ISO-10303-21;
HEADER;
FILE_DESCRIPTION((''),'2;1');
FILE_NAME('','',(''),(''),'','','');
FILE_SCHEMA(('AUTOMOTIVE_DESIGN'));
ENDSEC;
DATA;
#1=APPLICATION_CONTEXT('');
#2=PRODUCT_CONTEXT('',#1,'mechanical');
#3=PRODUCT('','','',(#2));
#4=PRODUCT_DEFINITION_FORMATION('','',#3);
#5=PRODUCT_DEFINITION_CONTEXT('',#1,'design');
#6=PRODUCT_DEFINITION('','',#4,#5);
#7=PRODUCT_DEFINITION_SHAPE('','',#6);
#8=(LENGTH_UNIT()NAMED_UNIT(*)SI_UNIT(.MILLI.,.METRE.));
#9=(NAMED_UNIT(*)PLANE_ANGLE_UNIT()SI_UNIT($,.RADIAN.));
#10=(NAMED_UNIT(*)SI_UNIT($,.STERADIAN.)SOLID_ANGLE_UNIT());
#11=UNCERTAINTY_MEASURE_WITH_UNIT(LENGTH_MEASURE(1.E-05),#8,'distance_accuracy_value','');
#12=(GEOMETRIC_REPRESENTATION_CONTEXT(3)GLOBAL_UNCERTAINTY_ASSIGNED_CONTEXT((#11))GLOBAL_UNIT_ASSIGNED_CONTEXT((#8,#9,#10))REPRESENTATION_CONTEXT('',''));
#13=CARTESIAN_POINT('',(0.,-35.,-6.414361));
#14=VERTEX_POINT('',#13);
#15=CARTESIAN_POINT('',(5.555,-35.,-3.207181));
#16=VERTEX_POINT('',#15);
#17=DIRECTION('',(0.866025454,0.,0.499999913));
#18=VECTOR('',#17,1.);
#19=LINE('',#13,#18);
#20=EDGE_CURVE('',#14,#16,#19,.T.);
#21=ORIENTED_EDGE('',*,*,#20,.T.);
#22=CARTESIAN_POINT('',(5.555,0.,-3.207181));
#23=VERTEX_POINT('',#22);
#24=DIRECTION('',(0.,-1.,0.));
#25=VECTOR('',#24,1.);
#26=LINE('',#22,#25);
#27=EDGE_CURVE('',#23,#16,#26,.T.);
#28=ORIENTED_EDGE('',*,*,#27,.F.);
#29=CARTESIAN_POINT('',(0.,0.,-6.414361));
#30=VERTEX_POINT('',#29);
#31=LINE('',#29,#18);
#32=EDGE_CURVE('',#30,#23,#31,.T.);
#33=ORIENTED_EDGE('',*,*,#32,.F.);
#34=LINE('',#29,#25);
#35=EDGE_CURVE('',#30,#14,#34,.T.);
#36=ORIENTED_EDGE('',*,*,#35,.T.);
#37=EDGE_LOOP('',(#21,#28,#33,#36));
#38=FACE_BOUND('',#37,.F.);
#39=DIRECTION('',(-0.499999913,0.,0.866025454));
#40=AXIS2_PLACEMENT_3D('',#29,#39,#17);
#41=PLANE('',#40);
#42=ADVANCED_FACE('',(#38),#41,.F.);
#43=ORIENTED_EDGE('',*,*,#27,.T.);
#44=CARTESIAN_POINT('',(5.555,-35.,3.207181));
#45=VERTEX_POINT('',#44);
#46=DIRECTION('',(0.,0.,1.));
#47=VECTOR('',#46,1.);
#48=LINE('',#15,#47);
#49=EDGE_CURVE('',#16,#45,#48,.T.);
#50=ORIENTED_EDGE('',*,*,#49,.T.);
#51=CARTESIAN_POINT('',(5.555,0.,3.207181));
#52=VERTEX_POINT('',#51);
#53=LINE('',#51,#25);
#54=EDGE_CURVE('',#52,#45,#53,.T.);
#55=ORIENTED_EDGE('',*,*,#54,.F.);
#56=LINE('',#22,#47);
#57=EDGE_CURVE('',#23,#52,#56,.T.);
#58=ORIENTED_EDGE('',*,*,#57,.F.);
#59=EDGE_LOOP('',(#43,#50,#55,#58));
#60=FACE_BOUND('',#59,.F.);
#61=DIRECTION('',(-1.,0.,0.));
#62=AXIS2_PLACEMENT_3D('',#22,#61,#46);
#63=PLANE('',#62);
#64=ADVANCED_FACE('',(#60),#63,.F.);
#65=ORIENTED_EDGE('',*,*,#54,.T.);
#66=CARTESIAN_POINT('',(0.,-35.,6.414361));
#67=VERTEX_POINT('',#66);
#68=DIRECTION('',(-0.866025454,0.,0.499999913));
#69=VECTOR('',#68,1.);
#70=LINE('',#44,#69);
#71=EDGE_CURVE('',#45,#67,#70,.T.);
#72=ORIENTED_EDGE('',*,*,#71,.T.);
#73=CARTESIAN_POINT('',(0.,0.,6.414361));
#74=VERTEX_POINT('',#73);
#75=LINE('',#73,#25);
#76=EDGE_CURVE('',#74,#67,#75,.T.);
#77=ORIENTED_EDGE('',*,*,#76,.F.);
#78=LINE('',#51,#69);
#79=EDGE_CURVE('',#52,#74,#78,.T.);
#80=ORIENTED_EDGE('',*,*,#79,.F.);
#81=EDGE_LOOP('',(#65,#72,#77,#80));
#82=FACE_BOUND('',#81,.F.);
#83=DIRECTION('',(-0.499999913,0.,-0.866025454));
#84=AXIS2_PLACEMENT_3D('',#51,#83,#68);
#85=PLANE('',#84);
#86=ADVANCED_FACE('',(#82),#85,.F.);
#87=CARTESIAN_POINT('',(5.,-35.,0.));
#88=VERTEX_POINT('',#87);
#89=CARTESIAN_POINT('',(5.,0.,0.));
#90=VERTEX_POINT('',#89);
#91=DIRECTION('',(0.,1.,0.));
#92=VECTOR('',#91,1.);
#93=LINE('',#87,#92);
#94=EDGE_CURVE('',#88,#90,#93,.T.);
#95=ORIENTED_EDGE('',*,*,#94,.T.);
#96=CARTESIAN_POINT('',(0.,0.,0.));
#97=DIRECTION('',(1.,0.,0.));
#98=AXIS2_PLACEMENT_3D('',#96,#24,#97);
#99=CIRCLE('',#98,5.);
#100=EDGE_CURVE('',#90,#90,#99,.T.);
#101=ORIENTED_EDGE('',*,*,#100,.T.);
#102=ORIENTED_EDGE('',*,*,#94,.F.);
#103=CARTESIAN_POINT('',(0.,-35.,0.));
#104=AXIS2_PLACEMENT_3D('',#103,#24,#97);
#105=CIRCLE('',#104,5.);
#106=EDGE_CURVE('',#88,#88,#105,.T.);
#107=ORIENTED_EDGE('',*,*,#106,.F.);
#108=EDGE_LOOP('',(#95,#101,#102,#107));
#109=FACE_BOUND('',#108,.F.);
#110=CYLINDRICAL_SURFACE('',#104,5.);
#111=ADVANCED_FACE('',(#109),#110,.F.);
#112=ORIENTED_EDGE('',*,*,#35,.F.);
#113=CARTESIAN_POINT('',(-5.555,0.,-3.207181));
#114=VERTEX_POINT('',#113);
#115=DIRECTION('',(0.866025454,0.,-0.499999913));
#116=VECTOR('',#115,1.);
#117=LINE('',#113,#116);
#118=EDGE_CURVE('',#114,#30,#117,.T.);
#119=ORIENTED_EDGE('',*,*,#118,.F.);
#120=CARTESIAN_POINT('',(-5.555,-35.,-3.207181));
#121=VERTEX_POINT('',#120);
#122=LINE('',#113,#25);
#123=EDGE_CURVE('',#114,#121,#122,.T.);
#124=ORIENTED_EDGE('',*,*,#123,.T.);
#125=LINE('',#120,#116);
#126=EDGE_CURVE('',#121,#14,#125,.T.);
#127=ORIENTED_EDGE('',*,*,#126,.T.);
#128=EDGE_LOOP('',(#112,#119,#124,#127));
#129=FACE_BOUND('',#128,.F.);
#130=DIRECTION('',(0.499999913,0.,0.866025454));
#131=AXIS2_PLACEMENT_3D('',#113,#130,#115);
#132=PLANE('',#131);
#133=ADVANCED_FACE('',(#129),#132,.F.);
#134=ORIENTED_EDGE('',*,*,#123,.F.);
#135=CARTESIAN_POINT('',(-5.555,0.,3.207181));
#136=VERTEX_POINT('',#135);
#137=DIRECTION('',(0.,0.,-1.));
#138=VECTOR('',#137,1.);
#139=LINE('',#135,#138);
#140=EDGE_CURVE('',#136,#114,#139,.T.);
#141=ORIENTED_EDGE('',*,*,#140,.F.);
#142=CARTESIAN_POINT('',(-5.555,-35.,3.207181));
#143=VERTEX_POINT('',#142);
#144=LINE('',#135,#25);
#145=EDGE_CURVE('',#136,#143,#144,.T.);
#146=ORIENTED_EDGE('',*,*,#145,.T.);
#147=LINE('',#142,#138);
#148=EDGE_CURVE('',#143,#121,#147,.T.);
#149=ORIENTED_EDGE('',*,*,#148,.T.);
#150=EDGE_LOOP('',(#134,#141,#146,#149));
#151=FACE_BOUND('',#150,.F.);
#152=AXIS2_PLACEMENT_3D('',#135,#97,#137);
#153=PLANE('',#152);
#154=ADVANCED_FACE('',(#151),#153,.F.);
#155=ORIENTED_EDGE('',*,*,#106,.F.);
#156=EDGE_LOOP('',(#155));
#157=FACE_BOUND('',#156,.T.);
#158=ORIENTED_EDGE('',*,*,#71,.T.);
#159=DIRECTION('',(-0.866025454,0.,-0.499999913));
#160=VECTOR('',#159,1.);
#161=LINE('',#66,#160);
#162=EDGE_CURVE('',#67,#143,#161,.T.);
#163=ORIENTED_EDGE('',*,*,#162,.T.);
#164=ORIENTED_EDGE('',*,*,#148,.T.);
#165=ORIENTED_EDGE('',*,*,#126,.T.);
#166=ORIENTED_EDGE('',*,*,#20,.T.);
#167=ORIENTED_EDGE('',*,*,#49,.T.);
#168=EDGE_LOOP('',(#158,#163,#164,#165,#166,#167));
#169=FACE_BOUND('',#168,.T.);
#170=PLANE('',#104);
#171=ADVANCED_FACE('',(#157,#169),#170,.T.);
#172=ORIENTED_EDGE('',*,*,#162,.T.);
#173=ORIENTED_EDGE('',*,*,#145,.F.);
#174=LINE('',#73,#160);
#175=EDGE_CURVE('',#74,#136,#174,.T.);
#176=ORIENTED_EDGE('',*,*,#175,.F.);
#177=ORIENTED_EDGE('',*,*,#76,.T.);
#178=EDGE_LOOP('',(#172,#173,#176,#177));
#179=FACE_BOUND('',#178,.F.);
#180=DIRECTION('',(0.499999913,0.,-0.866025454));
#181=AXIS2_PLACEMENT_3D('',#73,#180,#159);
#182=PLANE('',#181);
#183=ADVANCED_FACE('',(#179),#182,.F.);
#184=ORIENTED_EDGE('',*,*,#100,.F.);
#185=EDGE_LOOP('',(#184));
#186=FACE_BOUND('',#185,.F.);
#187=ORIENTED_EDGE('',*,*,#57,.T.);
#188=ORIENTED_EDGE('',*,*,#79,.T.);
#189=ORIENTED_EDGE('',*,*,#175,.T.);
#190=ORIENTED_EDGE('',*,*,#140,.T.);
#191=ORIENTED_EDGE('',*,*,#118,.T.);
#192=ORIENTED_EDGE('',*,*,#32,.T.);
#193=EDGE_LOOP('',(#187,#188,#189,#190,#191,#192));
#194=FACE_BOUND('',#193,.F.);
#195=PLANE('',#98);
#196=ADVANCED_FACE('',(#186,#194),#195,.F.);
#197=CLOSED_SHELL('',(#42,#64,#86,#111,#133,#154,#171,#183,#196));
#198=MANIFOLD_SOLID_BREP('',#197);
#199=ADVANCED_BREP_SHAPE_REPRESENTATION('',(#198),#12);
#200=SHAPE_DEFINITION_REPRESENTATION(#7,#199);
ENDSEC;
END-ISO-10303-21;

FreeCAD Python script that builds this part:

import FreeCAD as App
import Part
import Sketcher
from FreeCAD import Vector
Q = App.Units.Quantity

doc = App.newDocument("Part")
body = doc.addObject("PartDesign::Body", "Body")

# Sketch on XZ plane
sketch1 = doc.addObject("Sketcher::SketchObject", "Sketch")
body.addObject(sketch1)
sketch1.AttachmentSupport = (doc.XZ_Plane, [""])
sketch1.MapMode = "FlatFace"
sketch1.addGeometry(Part.LineSegment(Vector(6, -3, 0), Vector(6, 3, 0)), False)
sketch1.addGeometry(Part.LineSegment(Vector(6, 3, 0), Vector(0, 6, 0)), False)
sketch1.addGeometry(Part.LineSegment(Vector(0, 6, 0), Vector(-6, 3, 0)), False)
sketch1.addGeometry(Part.LineSegment(Vector(-6, 3, 0), Vector(-6, -3, 0)), False)
sketch1.addGeometry(Part.LineSegment(Vector(-6, -3, 0), Vector(0, -6, 0)), False)
sketch1.addGeometry(Part.LineSegment(Vector(0, -6, 0), Vector(6, -3, 0)), False)
sketch1.addConstraint(Sketcher.Constraint("Coincident", 0, 2, 1, 1))
sketch1.addConstraint(Sketcher.Constraint("Coincident", 1, 2, 2, 1))
sketch1.addConstraint(Sketcher.Constraint("Coincident", 2, 2, 3, 1))
sketch1.addConstraint(Sketcher.Constraint("Coincident", 3, 2, 4, 1))
sketch1.addConstraint(Sketcher.Constraint("Coincident", 4, 2, 5, 1))
sketch1.addConstraint(Sketcher.Constraint("Coincident", 5, 2, 0, 1))
sketch1.addConstraint(Sketcher.Constraint("Vertical", 0))
sketch1.addConstraint(Sketcher.Constraint("Vertical", 3))
sketch1.addConstraint(Sketcher.Constraint("Symmetric", 0, 2, 3, 2, -1, 1))
sketch1.addConstraint(Sketcher.Constraint("Symmetric", 1, 2, 4, 2, -1, 1))
sketch1.addConstraint(Sketcher.Constraint("PointOnObject", 1, 2, -2))
sketch1.addConstraint(Sketcher.Constraint("Parallel", 2, 5))
sketch1.addConstraint(Sketcher.Constraint("Horizontal", 0, 2, 2, 2))
sketch1.addConstraint(Sketcher.Constraint("Angle", 1, Q("150.000006 deg")))
sketch1.addConstraint(Sketcher.Constraint("DistanceX", 2, 2, 0, 2, 11.11))
sketch1.addConstraint(Sketcher.Constraint("DistanceY", 0, 1, 0, 2, 6.414362))
pad1 = doc.addObject("PartDesign::Pad", "Pad")
body.addObject(pad1)
pad1.Profile = sketch1
pad1.Length = 35

# Sketch on XZ plane
sketch2 = doc.addObject("Sketcher::SketchObject", "Sketch001")
body.addObject(sketch2)
sketch2.AttachmentSupport = (doc.XZ_Plane, [""])
sketch2.MapMode = "FlatFace"
sketch2.AttachmentOffset = App.Placement(Vector(0, 0, 35), App.Rotation())
sketch2.addGeometry(Part.Circle(Vector(0, 0, 0), Vector(0, 0, 1), 5), False)
sketch2.addConstraint(Sketcher.Constraint("Coincident", 0, 3, -1, 1))
sketch2.addConstraint(Sketcher.Constraint("Diameter", 0, 10.0))
pocket1 = doc.addObject("PartDesign::Pocket", "Pocket")
body.addObject(pocket1)
pocket1.Profile = sketch2
pocket1.Length = 63.8

doc.recompute()
